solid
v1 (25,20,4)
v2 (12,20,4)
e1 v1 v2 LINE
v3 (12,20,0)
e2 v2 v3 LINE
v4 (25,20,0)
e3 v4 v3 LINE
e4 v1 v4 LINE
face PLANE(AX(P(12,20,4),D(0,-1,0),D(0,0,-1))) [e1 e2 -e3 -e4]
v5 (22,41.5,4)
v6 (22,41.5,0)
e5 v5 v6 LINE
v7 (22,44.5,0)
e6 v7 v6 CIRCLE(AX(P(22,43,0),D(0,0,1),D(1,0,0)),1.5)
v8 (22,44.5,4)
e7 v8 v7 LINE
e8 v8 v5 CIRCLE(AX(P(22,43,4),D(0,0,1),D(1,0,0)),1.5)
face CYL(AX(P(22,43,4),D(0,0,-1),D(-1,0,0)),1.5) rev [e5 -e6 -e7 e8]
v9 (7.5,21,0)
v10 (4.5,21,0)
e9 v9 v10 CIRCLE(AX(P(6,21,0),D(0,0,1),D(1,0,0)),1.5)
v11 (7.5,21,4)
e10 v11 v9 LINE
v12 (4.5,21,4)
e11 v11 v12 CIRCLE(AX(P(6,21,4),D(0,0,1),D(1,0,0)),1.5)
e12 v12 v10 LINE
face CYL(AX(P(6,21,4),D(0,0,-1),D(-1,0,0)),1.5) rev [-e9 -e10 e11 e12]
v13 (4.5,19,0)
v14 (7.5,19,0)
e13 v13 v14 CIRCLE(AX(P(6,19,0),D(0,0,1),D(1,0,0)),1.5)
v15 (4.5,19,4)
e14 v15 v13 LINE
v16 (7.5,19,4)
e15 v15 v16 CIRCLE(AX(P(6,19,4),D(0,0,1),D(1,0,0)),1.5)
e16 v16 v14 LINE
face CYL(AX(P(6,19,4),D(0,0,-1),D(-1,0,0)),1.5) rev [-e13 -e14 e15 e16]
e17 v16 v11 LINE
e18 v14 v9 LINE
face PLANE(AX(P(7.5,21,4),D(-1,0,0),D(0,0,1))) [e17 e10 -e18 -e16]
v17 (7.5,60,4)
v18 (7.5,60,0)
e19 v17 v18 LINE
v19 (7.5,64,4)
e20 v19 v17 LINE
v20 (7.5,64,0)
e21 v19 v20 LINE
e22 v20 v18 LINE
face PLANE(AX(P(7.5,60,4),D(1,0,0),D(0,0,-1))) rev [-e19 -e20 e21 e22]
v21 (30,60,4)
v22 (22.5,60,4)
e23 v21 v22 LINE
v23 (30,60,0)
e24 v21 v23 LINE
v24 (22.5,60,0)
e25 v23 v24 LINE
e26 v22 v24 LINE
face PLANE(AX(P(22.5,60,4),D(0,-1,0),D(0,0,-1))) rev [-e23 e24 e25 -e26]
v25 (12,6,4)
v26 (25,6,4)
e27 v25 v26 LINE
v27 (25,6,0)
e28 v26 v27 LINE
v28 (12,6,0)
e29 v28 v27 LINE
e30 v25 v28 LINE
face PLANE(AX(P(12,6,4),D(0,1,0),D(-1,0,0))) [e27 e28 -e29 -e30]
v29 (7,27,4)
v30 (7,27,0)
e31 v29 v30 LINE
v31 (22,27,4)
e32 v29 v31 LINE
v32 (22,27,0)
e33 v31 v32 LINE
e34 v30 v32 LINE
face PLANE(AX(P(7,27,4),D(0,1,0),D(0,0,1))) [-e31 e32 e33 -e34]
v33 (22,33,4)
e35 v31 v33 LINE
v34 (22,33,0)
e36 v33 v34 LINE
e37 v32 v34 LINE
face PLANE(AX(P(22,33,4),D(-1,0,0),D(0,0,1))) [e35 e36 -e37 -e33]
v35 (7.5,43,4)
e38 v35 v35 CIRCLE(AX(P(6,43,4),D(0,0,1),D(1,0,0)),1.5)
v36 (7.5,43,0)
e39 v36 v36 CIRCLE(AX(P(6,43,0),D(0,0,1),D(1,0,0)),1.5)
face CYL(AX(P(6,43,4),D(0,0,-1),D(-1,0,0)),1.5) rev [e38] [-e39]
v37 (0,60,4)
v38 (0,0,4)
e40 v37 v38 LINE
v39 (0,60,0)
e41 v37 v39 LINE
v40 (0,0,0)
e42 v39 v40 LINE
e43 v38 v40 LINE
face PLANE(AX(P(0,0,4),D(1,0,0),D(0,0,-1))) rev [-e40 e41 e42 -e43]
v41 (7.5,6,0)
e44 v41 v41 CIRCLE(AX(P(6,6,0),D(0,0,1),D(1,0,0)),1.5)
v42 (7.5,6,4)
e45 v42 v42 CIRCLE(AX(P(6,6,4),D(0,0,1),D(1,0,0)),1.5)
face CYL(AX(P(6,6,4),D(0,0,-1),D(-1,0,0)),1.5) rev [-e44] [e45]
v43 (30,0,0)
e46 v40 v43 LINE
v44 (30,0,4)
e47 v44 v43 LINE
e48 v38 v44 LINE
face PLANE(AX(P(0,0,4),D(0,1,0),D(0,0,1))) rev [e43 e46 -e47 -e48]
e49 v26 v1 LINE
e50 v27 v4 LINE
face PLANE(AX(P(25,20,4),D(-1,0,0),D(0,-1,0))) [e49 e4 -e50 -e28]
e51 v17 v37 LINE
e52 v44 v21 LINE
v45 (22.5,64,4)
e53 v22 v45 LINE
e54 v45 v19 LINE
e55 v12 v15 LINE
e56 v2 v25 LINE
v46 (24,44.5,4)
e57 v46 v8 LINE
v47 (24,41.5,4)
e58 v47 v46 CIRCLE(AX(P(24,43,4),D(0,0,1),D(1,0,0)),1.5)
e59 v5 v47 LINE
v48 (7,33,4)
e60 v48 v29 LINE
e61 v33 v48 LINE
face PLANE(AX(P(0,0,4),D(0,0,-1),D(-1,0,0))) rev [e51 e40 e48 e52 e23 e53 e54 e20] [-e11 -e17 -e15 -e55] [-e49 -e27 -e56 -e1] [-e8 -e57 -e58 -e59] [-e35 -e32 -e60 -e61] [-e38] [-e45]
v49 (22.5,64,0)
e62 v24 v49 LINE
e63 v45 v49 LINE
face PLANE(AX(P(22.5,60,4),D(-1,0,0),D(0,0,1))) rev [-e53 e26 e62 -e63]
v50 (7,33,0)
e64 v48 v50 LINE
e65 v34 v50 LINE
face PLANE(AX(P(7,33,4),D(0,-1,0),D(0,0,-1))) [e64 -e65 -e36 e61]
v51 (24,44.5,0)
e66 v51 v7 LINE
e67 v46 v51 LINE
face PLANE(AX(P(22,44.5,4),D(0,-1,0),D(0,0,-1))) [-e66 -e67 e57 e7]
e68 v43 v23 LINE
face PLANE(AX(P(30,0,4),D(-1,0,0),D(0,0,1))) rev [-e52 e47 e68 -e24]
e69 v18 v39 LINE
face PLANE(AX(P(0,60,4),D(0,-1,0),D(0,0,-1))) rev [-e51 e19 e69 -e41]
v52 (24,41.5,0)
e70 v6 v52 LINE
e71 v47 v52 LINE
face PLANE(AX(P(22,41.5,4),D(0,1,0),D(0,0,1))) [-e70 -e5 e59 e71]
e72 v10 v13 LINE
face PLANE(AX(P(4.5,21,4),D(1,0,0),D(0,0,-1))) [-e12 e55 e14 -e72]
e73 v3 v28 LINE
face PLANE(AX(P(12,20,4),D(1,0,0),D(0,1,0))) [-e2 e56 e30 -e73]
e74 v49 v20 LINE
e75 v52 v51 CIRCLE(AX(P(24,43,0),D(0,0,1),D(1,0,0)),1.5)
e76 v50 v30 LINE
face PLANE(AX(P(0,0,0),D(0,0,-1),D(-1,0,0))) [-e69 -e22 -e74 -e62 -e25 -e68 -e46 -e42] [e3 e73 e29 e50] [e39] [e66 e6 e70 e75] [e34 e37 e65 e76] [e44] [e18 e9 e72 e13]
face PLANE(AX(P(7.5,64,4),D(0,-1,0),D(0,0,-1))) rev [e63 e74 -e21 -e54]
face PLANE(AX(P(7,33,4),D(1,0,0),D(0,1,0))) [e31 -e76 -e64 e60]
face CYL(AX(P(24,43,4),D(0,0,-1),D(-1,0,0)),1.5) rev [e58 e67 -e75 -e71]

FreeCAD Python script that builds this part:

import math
import FreeCAD as App
import Part
import Sketcher

V = App.Vector

doc = App.newDocument("Part")
body = doc.addObject("PartDesign::Body", "Body")

sketch1 = body.newObject("Sketcher::SketchObject", "Sketch")
sketch1.AttachmentSupport = (doc.getObject("XY_Plane"), [""])
sketch1.MapMode = "FlatFace"
sketch1.addGeometry(Part.LineSegment(V(0, 0, 0), V(30, 0, 0)), False)
sketch1.addGeometry(Part.LineSegment(V(30, 0, 0), V(30, 60, 0)), False)
sketch1.addGeometry(Part.LineSegment(V(30, 60, 0), V(22.5, 60, 0)), False)
sketch1.addGeometry(Part.LineSegment(V(22.5, 60, 0), V(22.5, 64, 0)), False)
sketch1.addGeometry(Part.LineSegment(V(22.5, 64, 0), V(7.5, 64, 0)), False)
sketch1.addGeometry(Part.LineSegment(V(7.5, 64, 0), V(7.5, 60, 0)), False)
sketch1.addGeometry(Part.LineSegment(V(7.5, 60, 0), V(0, 60, 0)), False)
sketch1.addGeometry(Part.LineSegment(V(0, 60, 0), V(0, 0, 0)), False)
sketch1.addGeometry(Part.Circle(V(6, 6, 0), V(0, 0, 1), 1.5), False)
sketch1.addGeometry(Part.ArcOfCircle(Part.Circle(V(6, 21, 0), V(0, 0, 1), 1.5), math.radians(0), math.radians(180)), False)
sketch1.addGeometry(Part.LineSegment(V(7.5, 21, 0), V(7.5, 19, 0)), False)
sketch1.addGeometry(Part.ArcOfCircle(Part.Circle(V(6, 19, 0), V(0, 0, 1), 1.5), math.radians(180), math.radians(360)), False)
sketch1.addGeometry(Part.LineSegment(V(4.5, 19, 0), V(4.5, 21, 0)), False)
sketch1.addGeometry(Part.LineSegment(V(25, 6, 0), V(12, 6, 0)), False)
sketch1.addGeometry(Part.LineSegment(V(12, 6, 0), V(12, 20, 0)), False)
sketch1.addGeometry(Part.LineSegment(V(12, 20, 0), V(25, 20, 0)), False)
sketch1.addGeometry(Part.LineSegment(V(25, 20, 0), V(25, 6, 0)), False)
sketch1.addGeometry(Part.LineSegment(V(22, 27, 0), V(7, 27, 0)), False)
sketch1.addGeometry(Part.LineSegment(V(7, 27, 0), V(7, 33, 0)), False)
sketch1.addGeometry(Part.LineSegment(V(7, 33, 0), V(22, 33, 0)), False)
sketch1.addGeometry(Part.LineSegment(V(22, 33, 0), V(22, 27, 0)), False)
sketch1.addGeometry(Part.Circle(V(6, 43, 0), V(0, 0, 1), 1.5), False)
sketch1.addGeometry(Part.ArcOfCircle(Part.Circle(V(22, 43, 0), V(0, 0, 1), 1.5), math.radians(90), math.radians(270)), False)
sketch1.addGeometry(Part.LineSegment(V(22, 44.5, 0), V(24, 44.5, 0)), False)
sketch1.addGeometry(Part.ArcOfCircle(Part.Circle(V(24, 43, 0), V(0, 0, 1), 1.5), math.radians(-90), math.radians(90)), False)
sketch1.addGeometry(Part.LineSegment(V(24, 41.5, 0), V(22, 41.5, 0)), False)
sketch1.addConstraint(Sketcher.Constraint("Coincident", 0, 2, 1, 1))
sketch1.addConstraint(Sketcher.Constraint("Coincident", 1, 2, 2, 1))
sketch1.addConstraint(Sketcher.Constraint("Coincident", 2, 2, 3, 1))
sketch1.addConstraint(Sketcher.Constraint("Coincident", 3, 2, 4, 1))
sketch1.addConstraint(Sketcher.Constraint("Coincident", 4, 2, 5, 1))
sketch1.addConstraint(Sketcher.Constraint("Coincident", 5, 2, 6, 1))
sketch1.addConstraint(Sketcher.Constraint("Coincident", 6, 2, 7, 1))
sketch1.addConstraint(Sketcher.Constraint("Coincident", 7, 2, 0, 1))
sketch1.addConstraint(Sketcher.Constraint("Tangent", 9, 1, 10, 1))
sketch1.addConstraint(Sketcher.Constraint("Tangent", 10, 2, 11, 2))
sketch1.addConstraint(Sketcher.Constraint("Tangent", 11, 1, 12, 1))
sketch1.addConstraint(Sketcher.Constraint("Tangent", 12, 2, 9, 2))
sketch1.addConstraint(Sketcher.Constraint("Coincident", 13, 2, 14, 1))
sketch1.addConstraint(Sketcher.Constraint("Coincident", 14, 2, 15, 1))
sketch1.addConstraint(Sketcher.Constraint("Coincident", 15, 2, 16, 1))
sketch1.addConstraint(Sketcher.Constraint("Coincident", 16, 2, 13, 1))
sketch1.addConstraint(Sketcher.Constraint("Coincident", 17, 2, 18, 1))
sketch1.addConstraint(Sketcher.Constraint("Coincident", 18, 2, 19, 1))
sketch1.addConstraint(Sketcher.Constraint("Coincident", 19, 2, 20, 1))
sketch1.addConstraint(Sketcher.Constraint("Coincident", 20, 2, 17, 1))
sketch1.addConstraint(Sketcher.Constraint("Tangent", 22, 1, 23, 1))
sketch1.addConstraint(Sketcher.Constraint("Tangent", 23, 2, 24, 2))
sketch1.addConstraint(Sketcher.Constraint("Tangent", 24, 1, 25, 1))
sketch1.addConstraint(Sketcher.Constraint("Tangent", 25, 2, 22, 2))
sketch1.addConstraint(Sketcher.Constraint("Horizontal", 0))
sketch1.addConstraint(Sketcher.Constraint("Vertical", 1))
sketch1.addConstraint(Sketcher.Constraint("Horizontal", 2))
sketch1.addConstraint(Sketcher.Constraint("Vertical", 3))
sketch1.addConstraint(Sketcher.Constraint("Horizontal", 4))
sketch1.addConstraint(Sketcher.Constraint("Vertical", 5))
sketch1.addConstraint(Sketcher.Constraint("Horizontal", 6))
sketch1.addConstraint(Sketcher.Constraint("Vertical", 7))
sketch1.addConstraint(Sketcher.Constraint("Vertical", 10))
sketch1.addConstraint(Sketcher.Constraint("Vertical", 12))
sketch1.addConstraint(Sketcher.Constraint("Horizontal", 13))
sketch1.addConstraint(Sketcher.Constraint("Vertical", 14))
sketch1.addConstraint(Sketcher.Constraint("Horizontal", 15))
sketch1.addConstraint(Sketcher.Constraint("Vertical", 16))
sketch1.addConstraint(Sketcher.Constraint("Horizontal", 17))
sketch1.addConstraint(Sketcher.Constraint("Vertical", 18))
sketch1.addConstraint(Sketcher.Constraint("Horizontal", 19))
sketch1.addConstraint(Sketcher.Constraint("Vertical", 20))
sketch1.addConstraint(Sketcher.Constraint("Horizontal", 23))
sketch1.addConstraint(Sketcher.Constraint("Horizontal", 25))
sketch1.addConstraint(Sketcher.Constraint("Coincident", 7, 2, -1, 1))
sketch1.addConstraint(Sketcher.Constraint("Equal", 8, 9))
sketch1.addConstraint(Sketcher.Constraint("Equal", 11, 21))
sketch1.addConstraint(Sketcher.Constraint("Equal", 21, 22))
sketch1.addConstraint(Sketcher.Constraint("Horizontal", 21, 3, 22, 3))
sketch1.addConstraint(Sketcher.Constraint("Horizontal", 2, 2, 5, 2))
sketch1.addConstraint(Sketcher.Constraint("Horizontal", 8, 3, 13, 2))
sketch1.addConstraint(Sketcher.Constraint("Vertical", 8, 3, 9, 3))
sketch1.addConstraint(Sketcher.Constraint("Vertical", 11, 3, 21, 3))
sketch1.addConstraint(Sketcher.Constraint("Vertical", 5, 2, 9, 1))
sketch1.addConstraint(Sketcher.Constraint("Vertical", 22, 3, 19, 2))
sketch1.addConstraint(Sketcher.Constraint("Equal", 2, 6))
sketch1.addConstraint(Sketcher.Constraint("Equal", 4, 17))
sketch1.addConstraint(Sketcher.Constraint("Equal", 25, 10))
sketch1.addConstraint(Sketcher.Constraint("Diameter", 8, 3.0))
sketch1.addConstraint(Sketcher.Constraint("DistanceX", 0, 1, 0, 2, 30.0))
sketch1.addConstraint(Sketcher.Constraint("DistanceX", 4, 2, 4, 1, 15.0))
sketch1.addConstraint(Sketcher.Constraint("DistanceX", 13, 2, 13, 1, 13.0))
sketch1.addConstraint(Sketcher.Constraint("DistanceX", 23, 1, 23, 2, 2.0))
sketch1.addConstraint(Sketcher.Constraint("DistanceY", 1, 1, 1, 2, 60.0))
sketch1.addConstraint(Sketcher.Constraint("DistanceY", 3, 1, 3, 2, 4.0))
sketch1.addConstraint(Sketcher.Constraint("DistanceY", 14, 1, 14, 2, 14.0))
sketch1.addConstraint(Sketcher.Constraint("DistanceY", 18, 1, 18, 2, 6.0))
sketch1.addConstraint(Sketcher.Constraint("DistanceY", -1, 1, 8, 3, 6.0))
sketch1.addConstraint(Sketcher.Constraint("DistanceY", -1, 1, 9, 3, 21.0))
sketch1.addConstraint(Sketcher.Constraint("DistanceY", -1, 1, 21, 3, 43.0))
sketch1.addConstraint(Sketcher.Constraint("DistanceX", -1, 1, 22, 3, 22.0))
sketch1.addConstraint(Sketcher.Constraint("DistanceX", -1, 1, 13, 2, 12.0))
sketch1.addConstraint(Sketcher.Constraint("DistanceY", -1, 1, 17, 2, 27.0))
pad1 = body.newObject("PartDesign::Pad", "Pad")
pad1.Profile = sketch1
pad1.Length = 4

doc.recompute()
